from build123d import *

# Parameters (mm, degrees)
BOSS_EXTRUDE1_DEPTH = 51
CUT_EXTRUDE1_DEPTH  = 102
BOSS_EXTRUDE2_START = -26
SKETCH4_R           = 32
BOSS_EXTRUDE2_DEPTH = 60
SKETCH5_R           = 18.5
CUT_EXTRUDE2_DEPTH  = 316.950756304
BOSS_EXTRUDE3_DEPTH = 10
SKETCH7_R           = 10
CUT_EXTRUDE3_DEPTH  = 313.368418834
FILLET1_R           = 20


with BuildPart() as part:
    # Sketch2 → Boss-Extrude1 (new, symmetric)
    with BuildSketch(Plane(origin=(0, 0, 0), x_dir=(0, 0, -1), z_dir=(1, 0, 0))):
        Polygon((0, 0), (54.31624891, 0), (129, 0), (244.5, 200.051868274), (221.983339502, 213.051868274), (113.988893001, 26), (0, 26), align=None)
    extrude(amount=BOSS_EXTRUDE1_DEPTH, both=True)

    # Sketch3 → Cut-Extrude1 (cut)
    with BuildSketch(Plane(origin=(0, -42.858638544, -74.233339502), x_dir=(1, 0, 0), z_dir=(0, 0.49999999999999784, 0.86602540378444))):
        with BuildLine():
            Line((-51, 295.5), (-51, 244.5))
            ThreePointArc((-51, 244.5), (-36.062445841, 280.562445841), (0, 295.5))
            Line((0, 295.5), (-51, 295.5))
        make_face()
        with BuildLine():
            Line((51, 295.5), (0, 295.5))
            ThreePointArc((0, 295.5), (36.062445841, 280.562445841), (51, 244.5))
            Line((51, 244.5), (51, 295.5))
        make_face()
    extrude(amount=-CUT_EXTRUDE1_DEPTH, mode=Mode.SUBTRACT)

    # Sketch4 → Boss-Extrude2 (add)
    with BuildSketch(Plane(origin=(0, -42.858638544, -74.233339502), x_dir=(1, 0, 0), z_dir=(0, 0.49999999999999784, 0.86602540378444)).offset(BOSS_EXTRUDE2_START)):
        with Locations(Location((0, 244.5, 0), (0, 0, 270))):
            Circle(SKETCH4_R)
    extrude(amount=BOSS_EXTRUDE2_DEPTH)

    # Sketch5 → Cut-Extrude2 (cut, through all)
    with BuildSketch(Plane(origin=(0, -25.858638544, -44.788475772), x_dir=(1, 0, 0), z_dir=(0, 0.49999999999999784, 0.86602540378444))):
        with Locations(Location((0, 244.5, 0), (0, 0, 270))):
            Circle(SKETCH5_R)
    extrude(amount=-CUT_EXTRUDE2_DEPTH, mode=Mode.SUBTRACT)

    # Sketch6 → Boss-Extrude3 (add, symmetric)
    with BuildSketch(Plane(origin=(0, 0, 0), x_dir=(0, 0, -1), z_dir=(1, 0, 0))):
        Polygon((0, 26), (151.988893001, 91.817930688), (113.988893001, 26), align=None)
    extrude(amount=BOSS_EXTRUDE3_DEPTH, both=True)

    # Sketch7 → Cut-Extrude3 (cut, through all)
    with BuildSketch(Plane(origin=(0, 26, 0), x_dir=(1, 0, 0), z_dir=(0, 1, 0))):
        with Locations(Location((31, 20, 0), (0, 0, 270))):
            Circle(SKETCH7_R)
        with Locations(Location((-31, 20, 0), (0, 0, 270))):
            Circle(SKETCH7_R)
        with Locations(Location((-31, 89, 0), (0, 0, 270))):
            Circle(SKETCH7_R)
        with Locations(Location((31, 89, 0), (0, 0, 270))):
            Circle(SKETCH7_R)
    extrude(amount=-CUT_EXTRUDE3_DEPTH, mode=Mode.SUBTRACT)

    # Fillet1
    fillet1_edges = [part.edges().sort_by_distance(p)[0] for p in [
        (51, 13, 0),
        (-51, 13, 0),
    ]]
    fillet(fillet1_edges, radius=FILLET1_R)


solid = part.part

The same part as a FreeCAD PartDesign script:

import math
import FreeCAD as App
import Part
import Sketcher
Q = App.Units.Quantity


def edges_at(feature, points):
    """Names of the edges that pass closest to the given points."""
    edges = feature.Shape.Edges
    near = lambda p: min(range(len(edges)), key=lambda i: edges[i].distToShape(Part.Vertex(*p))[0])
    return sorted({f"Edge{near(p) + 1}" for p in points})


def add_polygon(sketch, points):
    """Adds a closed chain of lines whose ends are joined by coincident constraints."""
    first, n = sketch.GeometryCount, len(points)
    for a, b in zip(points, points[1:] + points[:1]):
        sketch.addGeometry(Part.LineSegment(App.Vector(*a, 0), App.Vector(*b, 0)), False)
    for i in range(n):
        sketch.addConstraint(Sketcher.Constraint("Coincident", first + i, 2, first + (i + 1) % n, 1))

doc = App.newDocument("Part")
body = doc.addObject("PartDesign::Body", "Body")

# Sketch on YZ plane
sketch1 = doc.addObject("Sketcher::SketchObject", "Sketch")
body.addObject(sketch1)
sketch1.AttachmentSupport = (doc.YZ_Plane, [""])
sketch1.MapMode = "FlatFace"
add_polygon(sketch1, [(0, 0), (0, -129), (200, -244), (213, -222), (26, -114), (26, 0)])  # lines 0-5
sketch1.addConstraint(Sketcher.Constraint("Vertical", 0))
sketch1.addConstraint(Sketcher.Constraint("Vertical", 4))
sketch1.addConstraint(Sketcher.Constraint("Horizontal", 5))
sketch1.addConstraint(Sketcher.Constraint("Coincident", 5, 2, -1, 1))
sketch1.addConstraint(Sketcher.Constraint("Perpendicular", 1, 2))
sketch1.addConstraint(Sketcher.Constraint("Perpendicular", 2, 3))
sketch1.addConstraint(Sketcher.Constraint("DistanceX", 5, 2, 5, 1, Q("26 mm")))
sketch1.addConstraint(Sketcher.Constraint("DistanceY", 0, 2, 0, 1, Q("129 mm")))
sketch1.addConstraint(Sketcher.Constraint("Angle", 1, Q("-30 deg")))
sketch1.addConstraint(Sketcher.Constraint("Distance", 1, Q("231 mm")))
sketch1.addConstraint(Sketcher.Constraint("Distance", 2, Q("26 mm")))
pad1 = doc.addObject("PartDesign::Pad", "Pad")
body.addObject(pad1)
pad1.Profile = sketch1
pad1.Length = 102
pad1.Midplane = True

# Sketch on an angled plane
sketch2 = doc.addObject("Sketcher::SketchObject", "Sketch001")
body.addObject(sketch2)
sketch2.Placement = App.Placement(App.Vector(0, -42.858639, -74.23334), App.Rotation(App.Vector(1, 0, 0), App.Vector(0, 0.866025404, -0.5), App.Vector(0, 0.5, 0.866025404), "ZXY"))
sketch2.addGeometry(Part.LineSegment(App.Vector(-51, 296, 0), App.Vector(-51, 245, 0)), False)
sketch2.addGeometry(Part.ArcOfCircle(Part.Circle(App.Vector(0, 245, 0), App.Vector(0, 0, 1), 51), math.radians(90), math.radians(180)), False)
sketch2.addGeometry(Part.LineSegment(App.Vector(0, 296, 0), App.Vector(-51, 296, 0)), False)
sketch2.addGeometry(Part.LineSegment(App.Vector(51, 296, 0), App.Vector(0, 296, 0)), False)
sketch2.addGeometry(Part.ArcOfCircle(Part.Circle(App.Vector(0, 245, 0), App.Vector(0, 0, 1), 51), math.radians(0), math.radians(90)), False)
sketch2.addGeometry(Part.LineSegment(App.Vector(51, 245, 0), App.Vector(51, 296, 0)), False)
sketch2.addConstraint(Sketcher.Constraint("Tangent", 0, 2, 1, 2))
sketch2.addConstraint(Sketcher.Constraint("Tangent", 1, 1, 2, 1))
sketch2.addConstraint(Sketcher.Constraint("Coincident", 2, 2, 0, 1))
sketch2.addConstraint(Sketcher.Constraint("Tangent", 3, 2, 4, 2))
sketch2.addConstraint(Sketcher.Constraint("Tangent", 4, 1, 5, 1))
sketch2.addConstraint(Sketcher.Constraint("Coincident", 5, 2, 3, 1))
sketch2.addConstraint(Sketcher.Constraint("Vertical", 0))
sketch2.addConstraint(Sketcher.Constraint("Horizontal", 2))
sketch2.addConstraint(Sketcher.Constraint("Horizontal", 3))
sketch2.addConstraint(Sketcher.Constraint("Vertical", 5))
sketch2.addConstraint(Sketcher.Constraint("Coincident", 4, 3, 1, 3))
sketch2.addConstraint(Sketcher.Constraint("Equal", 1, 4))
sketch2.addConstraint(Sketcher.Constraint("PointOnObject", 1, 3, -2))
sketch2.addConstraint(Sketcher.Constraint("Radius", 1, Q("51 mm")))
sketch2.addConstraint(Sketcher.Constraint("DistanceY", -1, 1, 1, 3, Q("244.5 mm")))
pocket1 = doc.addObject("PartDesign::Pocket", "Pocket")
body.addObject(pocket1)
pocket1.Profile = sketch2
pocket1.Length = 102

# Sketch on an angled plane
sketch3 = doc.addObject("Sketcher::SketchObject", "Sketch002")
body.addObject(sketch3)
sketch3.Placement = App.Placement(App.Vector(0, -55.858639, -96.75), App.Rotation(App.Vector(1, 0, 0), App.Vector(0, 0.866025404, -0.5), App.Vector(0, 0.5, 0.866025404), "ZXY"))
sketch3.addGeometry(Part.Circle(App.Vector(0, 245, 0), App.Vector(0, 0, 1), 32), False)
sketch3.addConstraint(Sketcher.Constraint("PointOnObject", 0, 3, -2))
sketch3.addConstraint(Sketcher.Constraint("Diameter", 0, Q("64 mm")))
sketch3.addConstraint(Sketcher.Constraint("DistanceY", -1, 1, 0, 3, Q("244.5 mm")))
pad2 = doc.addObject("PartDesign::Pad", "Pad001")
body.addObject(pad2)
pad2.Profile = sketch3
pad2.Length = 60

# Sketch on an angled plane
sketch4 = doc.addObject("Sketcher::SketchObject", "Sketch003")
body.addObject(sketch4)
sketch4.Placement = App.Placement(App.Vector(0, -25.858639, -44.788476), App.Rotation(App.Vector(1, 0, 0), App.Vector(0, 0.866025404, -0.5), App.Vector(0, 0.5, 0.866025404), "ZXY"))
sketch4.addGeometry(Part.Circle(App.Vector(0, 245, 0), App.Vector(0, 0, 1), 18), False)
sketch4.addConstraint(Sketcher.Constraint("PointOnObject", 0, 3, -2))
sketch4.addConstraint(Sketcher.Constraint("Diameter", 0, Q("37 mm")))
sketch4.addConstraint(Sketcher.Constraint("DistanceY", -1, 1, 0, 3, Q("244.5 mm")))
pocket2 = doc.addObject("PartDesign::Pocket", "Pocket001")
body.addObject(pocket2)
pocket2.Profile = sketch4
pocket2.Type = "ThroughAll"

# Sketch on YZ plane
sketch5 = doc.addObject("Sketcher::SketchObject", "Sketch004")
body.addObject(sketch5)
sketch5.AttachmentSupport = (doc.YZ_Plane, [""])
sketch5.MapMode = "FlatFace"
add_polygon(sketch5, [(92, -152), (26, 0), (26, -114)])  # lines 0-2
sketch5.addConstraint(Sketcher.Constraint("Vertical", 1))
sketch5.addConstraint(Sketcher.Constraint("PointOnObject", 0, 2, -1))
sketch5.addConstraint(Sketcher.Constraint("Angle", 2, Q("-30 deg")))
sketch5.addConstraint(Sketcher.Constraint("Distance", 2, Q("76 mm")))
sketch5.addConstraint(Sketcher.Constraint("DistanceX", -1, 1, 0, 2, Q("26 mm")))
sketch5.addConstraint(Sketcher.Constraint("DistanceY", 1, 2, 1, 1, Q("113.988893 mm")))
pad3 = doc.addObject("PartDesign::Pad", "Pad002")
body.addObject(pad3)
pad3.Profile = sketch5
pad3.Length = 20
pad3.Midplane = True

# Sketch on XZ plane
sketch6 = doc.addObject("Sketcher::SketchObject", "Sketch005")
body.addObject(sketch6)
sketch6.AttachmentSupport = (doc.XZ_Plane, [""])
sketch6.MapMode = "FlatFace"
sketch6.AttachmentOffset = App.Placement(App.Vector(0, 0, -26), App.Rotation())
sketch6.addGeometry(Part.Circle(App.Vector(31, -20, 0), App.Vector(0, 0, 1), 10), False)
sketch6.addGeometry(Part.Circle(App.Vector(-31, -20, 0), App.Vector(0, 0, 1), 10), False)
sketch6.addGeometry(Part.Circle(App.Vector(-31, -89, 0), App.Vector(0, 0, 1), 10), False)
sketch6.addGeometry(Part.Circle(App.Vector(31, -89, 0), App.Vector(0, 0, 1), 10), False)
sketch6.addConstraint(Sketcher.Constraint("Equal", 0, 1))
sketch6.addConstraint(Sketcher.Constraint("Equal", 1, 2))
sketch6.addConstraint(Sketcher.Constraint("Equal", 2, 3))
sketch6.addConstraint(Sketcher.Constraint("Symmetric", 0, 3, 1, 3, -2))
sketch6.addConstraint(Sketcher.Constraint("Symmetric", 2, 3, 3, 3, -2))
sketch6.addConstraint(Sketcher.Constraint("Vertical", 1, 3, 2, 3))
sketch6.addConstraint(Sketcher.Constraint("Diameter", 0, Q("20 mm")))
sketch6.addConstraint(Sketcher.Constraint("DistanceX", -1, 1, 0, 3, Q("31 mm")))
sketch6.addConstraint(Sketcher.Constraint("DistanceY", 0, 3, -1, 1, Q("20 mm")))
sketch6.addConstraint(Sketcher.Constraint("DistanceY", 2, 3, -1, 1, Q("89 mm")))
pocket3 = doc.addObject("PartDesign::Pocket", "Pocket002")
body.addObject(pocket3)
pocket3.Profile = sketch6
pocket3.Type = "ThroughAll"
pocket3.Reversed = True
doc.recompute()

fillet = doc.addObject("PartDesign::Fillet", "Fillet")
body.addObject(fillet)
fillet.Base = (pocket3, edges_at(pocket3, [(51, 13, 0), (-51, 13, 0)]))
fillet.Radius = 20

doc.recompute()
